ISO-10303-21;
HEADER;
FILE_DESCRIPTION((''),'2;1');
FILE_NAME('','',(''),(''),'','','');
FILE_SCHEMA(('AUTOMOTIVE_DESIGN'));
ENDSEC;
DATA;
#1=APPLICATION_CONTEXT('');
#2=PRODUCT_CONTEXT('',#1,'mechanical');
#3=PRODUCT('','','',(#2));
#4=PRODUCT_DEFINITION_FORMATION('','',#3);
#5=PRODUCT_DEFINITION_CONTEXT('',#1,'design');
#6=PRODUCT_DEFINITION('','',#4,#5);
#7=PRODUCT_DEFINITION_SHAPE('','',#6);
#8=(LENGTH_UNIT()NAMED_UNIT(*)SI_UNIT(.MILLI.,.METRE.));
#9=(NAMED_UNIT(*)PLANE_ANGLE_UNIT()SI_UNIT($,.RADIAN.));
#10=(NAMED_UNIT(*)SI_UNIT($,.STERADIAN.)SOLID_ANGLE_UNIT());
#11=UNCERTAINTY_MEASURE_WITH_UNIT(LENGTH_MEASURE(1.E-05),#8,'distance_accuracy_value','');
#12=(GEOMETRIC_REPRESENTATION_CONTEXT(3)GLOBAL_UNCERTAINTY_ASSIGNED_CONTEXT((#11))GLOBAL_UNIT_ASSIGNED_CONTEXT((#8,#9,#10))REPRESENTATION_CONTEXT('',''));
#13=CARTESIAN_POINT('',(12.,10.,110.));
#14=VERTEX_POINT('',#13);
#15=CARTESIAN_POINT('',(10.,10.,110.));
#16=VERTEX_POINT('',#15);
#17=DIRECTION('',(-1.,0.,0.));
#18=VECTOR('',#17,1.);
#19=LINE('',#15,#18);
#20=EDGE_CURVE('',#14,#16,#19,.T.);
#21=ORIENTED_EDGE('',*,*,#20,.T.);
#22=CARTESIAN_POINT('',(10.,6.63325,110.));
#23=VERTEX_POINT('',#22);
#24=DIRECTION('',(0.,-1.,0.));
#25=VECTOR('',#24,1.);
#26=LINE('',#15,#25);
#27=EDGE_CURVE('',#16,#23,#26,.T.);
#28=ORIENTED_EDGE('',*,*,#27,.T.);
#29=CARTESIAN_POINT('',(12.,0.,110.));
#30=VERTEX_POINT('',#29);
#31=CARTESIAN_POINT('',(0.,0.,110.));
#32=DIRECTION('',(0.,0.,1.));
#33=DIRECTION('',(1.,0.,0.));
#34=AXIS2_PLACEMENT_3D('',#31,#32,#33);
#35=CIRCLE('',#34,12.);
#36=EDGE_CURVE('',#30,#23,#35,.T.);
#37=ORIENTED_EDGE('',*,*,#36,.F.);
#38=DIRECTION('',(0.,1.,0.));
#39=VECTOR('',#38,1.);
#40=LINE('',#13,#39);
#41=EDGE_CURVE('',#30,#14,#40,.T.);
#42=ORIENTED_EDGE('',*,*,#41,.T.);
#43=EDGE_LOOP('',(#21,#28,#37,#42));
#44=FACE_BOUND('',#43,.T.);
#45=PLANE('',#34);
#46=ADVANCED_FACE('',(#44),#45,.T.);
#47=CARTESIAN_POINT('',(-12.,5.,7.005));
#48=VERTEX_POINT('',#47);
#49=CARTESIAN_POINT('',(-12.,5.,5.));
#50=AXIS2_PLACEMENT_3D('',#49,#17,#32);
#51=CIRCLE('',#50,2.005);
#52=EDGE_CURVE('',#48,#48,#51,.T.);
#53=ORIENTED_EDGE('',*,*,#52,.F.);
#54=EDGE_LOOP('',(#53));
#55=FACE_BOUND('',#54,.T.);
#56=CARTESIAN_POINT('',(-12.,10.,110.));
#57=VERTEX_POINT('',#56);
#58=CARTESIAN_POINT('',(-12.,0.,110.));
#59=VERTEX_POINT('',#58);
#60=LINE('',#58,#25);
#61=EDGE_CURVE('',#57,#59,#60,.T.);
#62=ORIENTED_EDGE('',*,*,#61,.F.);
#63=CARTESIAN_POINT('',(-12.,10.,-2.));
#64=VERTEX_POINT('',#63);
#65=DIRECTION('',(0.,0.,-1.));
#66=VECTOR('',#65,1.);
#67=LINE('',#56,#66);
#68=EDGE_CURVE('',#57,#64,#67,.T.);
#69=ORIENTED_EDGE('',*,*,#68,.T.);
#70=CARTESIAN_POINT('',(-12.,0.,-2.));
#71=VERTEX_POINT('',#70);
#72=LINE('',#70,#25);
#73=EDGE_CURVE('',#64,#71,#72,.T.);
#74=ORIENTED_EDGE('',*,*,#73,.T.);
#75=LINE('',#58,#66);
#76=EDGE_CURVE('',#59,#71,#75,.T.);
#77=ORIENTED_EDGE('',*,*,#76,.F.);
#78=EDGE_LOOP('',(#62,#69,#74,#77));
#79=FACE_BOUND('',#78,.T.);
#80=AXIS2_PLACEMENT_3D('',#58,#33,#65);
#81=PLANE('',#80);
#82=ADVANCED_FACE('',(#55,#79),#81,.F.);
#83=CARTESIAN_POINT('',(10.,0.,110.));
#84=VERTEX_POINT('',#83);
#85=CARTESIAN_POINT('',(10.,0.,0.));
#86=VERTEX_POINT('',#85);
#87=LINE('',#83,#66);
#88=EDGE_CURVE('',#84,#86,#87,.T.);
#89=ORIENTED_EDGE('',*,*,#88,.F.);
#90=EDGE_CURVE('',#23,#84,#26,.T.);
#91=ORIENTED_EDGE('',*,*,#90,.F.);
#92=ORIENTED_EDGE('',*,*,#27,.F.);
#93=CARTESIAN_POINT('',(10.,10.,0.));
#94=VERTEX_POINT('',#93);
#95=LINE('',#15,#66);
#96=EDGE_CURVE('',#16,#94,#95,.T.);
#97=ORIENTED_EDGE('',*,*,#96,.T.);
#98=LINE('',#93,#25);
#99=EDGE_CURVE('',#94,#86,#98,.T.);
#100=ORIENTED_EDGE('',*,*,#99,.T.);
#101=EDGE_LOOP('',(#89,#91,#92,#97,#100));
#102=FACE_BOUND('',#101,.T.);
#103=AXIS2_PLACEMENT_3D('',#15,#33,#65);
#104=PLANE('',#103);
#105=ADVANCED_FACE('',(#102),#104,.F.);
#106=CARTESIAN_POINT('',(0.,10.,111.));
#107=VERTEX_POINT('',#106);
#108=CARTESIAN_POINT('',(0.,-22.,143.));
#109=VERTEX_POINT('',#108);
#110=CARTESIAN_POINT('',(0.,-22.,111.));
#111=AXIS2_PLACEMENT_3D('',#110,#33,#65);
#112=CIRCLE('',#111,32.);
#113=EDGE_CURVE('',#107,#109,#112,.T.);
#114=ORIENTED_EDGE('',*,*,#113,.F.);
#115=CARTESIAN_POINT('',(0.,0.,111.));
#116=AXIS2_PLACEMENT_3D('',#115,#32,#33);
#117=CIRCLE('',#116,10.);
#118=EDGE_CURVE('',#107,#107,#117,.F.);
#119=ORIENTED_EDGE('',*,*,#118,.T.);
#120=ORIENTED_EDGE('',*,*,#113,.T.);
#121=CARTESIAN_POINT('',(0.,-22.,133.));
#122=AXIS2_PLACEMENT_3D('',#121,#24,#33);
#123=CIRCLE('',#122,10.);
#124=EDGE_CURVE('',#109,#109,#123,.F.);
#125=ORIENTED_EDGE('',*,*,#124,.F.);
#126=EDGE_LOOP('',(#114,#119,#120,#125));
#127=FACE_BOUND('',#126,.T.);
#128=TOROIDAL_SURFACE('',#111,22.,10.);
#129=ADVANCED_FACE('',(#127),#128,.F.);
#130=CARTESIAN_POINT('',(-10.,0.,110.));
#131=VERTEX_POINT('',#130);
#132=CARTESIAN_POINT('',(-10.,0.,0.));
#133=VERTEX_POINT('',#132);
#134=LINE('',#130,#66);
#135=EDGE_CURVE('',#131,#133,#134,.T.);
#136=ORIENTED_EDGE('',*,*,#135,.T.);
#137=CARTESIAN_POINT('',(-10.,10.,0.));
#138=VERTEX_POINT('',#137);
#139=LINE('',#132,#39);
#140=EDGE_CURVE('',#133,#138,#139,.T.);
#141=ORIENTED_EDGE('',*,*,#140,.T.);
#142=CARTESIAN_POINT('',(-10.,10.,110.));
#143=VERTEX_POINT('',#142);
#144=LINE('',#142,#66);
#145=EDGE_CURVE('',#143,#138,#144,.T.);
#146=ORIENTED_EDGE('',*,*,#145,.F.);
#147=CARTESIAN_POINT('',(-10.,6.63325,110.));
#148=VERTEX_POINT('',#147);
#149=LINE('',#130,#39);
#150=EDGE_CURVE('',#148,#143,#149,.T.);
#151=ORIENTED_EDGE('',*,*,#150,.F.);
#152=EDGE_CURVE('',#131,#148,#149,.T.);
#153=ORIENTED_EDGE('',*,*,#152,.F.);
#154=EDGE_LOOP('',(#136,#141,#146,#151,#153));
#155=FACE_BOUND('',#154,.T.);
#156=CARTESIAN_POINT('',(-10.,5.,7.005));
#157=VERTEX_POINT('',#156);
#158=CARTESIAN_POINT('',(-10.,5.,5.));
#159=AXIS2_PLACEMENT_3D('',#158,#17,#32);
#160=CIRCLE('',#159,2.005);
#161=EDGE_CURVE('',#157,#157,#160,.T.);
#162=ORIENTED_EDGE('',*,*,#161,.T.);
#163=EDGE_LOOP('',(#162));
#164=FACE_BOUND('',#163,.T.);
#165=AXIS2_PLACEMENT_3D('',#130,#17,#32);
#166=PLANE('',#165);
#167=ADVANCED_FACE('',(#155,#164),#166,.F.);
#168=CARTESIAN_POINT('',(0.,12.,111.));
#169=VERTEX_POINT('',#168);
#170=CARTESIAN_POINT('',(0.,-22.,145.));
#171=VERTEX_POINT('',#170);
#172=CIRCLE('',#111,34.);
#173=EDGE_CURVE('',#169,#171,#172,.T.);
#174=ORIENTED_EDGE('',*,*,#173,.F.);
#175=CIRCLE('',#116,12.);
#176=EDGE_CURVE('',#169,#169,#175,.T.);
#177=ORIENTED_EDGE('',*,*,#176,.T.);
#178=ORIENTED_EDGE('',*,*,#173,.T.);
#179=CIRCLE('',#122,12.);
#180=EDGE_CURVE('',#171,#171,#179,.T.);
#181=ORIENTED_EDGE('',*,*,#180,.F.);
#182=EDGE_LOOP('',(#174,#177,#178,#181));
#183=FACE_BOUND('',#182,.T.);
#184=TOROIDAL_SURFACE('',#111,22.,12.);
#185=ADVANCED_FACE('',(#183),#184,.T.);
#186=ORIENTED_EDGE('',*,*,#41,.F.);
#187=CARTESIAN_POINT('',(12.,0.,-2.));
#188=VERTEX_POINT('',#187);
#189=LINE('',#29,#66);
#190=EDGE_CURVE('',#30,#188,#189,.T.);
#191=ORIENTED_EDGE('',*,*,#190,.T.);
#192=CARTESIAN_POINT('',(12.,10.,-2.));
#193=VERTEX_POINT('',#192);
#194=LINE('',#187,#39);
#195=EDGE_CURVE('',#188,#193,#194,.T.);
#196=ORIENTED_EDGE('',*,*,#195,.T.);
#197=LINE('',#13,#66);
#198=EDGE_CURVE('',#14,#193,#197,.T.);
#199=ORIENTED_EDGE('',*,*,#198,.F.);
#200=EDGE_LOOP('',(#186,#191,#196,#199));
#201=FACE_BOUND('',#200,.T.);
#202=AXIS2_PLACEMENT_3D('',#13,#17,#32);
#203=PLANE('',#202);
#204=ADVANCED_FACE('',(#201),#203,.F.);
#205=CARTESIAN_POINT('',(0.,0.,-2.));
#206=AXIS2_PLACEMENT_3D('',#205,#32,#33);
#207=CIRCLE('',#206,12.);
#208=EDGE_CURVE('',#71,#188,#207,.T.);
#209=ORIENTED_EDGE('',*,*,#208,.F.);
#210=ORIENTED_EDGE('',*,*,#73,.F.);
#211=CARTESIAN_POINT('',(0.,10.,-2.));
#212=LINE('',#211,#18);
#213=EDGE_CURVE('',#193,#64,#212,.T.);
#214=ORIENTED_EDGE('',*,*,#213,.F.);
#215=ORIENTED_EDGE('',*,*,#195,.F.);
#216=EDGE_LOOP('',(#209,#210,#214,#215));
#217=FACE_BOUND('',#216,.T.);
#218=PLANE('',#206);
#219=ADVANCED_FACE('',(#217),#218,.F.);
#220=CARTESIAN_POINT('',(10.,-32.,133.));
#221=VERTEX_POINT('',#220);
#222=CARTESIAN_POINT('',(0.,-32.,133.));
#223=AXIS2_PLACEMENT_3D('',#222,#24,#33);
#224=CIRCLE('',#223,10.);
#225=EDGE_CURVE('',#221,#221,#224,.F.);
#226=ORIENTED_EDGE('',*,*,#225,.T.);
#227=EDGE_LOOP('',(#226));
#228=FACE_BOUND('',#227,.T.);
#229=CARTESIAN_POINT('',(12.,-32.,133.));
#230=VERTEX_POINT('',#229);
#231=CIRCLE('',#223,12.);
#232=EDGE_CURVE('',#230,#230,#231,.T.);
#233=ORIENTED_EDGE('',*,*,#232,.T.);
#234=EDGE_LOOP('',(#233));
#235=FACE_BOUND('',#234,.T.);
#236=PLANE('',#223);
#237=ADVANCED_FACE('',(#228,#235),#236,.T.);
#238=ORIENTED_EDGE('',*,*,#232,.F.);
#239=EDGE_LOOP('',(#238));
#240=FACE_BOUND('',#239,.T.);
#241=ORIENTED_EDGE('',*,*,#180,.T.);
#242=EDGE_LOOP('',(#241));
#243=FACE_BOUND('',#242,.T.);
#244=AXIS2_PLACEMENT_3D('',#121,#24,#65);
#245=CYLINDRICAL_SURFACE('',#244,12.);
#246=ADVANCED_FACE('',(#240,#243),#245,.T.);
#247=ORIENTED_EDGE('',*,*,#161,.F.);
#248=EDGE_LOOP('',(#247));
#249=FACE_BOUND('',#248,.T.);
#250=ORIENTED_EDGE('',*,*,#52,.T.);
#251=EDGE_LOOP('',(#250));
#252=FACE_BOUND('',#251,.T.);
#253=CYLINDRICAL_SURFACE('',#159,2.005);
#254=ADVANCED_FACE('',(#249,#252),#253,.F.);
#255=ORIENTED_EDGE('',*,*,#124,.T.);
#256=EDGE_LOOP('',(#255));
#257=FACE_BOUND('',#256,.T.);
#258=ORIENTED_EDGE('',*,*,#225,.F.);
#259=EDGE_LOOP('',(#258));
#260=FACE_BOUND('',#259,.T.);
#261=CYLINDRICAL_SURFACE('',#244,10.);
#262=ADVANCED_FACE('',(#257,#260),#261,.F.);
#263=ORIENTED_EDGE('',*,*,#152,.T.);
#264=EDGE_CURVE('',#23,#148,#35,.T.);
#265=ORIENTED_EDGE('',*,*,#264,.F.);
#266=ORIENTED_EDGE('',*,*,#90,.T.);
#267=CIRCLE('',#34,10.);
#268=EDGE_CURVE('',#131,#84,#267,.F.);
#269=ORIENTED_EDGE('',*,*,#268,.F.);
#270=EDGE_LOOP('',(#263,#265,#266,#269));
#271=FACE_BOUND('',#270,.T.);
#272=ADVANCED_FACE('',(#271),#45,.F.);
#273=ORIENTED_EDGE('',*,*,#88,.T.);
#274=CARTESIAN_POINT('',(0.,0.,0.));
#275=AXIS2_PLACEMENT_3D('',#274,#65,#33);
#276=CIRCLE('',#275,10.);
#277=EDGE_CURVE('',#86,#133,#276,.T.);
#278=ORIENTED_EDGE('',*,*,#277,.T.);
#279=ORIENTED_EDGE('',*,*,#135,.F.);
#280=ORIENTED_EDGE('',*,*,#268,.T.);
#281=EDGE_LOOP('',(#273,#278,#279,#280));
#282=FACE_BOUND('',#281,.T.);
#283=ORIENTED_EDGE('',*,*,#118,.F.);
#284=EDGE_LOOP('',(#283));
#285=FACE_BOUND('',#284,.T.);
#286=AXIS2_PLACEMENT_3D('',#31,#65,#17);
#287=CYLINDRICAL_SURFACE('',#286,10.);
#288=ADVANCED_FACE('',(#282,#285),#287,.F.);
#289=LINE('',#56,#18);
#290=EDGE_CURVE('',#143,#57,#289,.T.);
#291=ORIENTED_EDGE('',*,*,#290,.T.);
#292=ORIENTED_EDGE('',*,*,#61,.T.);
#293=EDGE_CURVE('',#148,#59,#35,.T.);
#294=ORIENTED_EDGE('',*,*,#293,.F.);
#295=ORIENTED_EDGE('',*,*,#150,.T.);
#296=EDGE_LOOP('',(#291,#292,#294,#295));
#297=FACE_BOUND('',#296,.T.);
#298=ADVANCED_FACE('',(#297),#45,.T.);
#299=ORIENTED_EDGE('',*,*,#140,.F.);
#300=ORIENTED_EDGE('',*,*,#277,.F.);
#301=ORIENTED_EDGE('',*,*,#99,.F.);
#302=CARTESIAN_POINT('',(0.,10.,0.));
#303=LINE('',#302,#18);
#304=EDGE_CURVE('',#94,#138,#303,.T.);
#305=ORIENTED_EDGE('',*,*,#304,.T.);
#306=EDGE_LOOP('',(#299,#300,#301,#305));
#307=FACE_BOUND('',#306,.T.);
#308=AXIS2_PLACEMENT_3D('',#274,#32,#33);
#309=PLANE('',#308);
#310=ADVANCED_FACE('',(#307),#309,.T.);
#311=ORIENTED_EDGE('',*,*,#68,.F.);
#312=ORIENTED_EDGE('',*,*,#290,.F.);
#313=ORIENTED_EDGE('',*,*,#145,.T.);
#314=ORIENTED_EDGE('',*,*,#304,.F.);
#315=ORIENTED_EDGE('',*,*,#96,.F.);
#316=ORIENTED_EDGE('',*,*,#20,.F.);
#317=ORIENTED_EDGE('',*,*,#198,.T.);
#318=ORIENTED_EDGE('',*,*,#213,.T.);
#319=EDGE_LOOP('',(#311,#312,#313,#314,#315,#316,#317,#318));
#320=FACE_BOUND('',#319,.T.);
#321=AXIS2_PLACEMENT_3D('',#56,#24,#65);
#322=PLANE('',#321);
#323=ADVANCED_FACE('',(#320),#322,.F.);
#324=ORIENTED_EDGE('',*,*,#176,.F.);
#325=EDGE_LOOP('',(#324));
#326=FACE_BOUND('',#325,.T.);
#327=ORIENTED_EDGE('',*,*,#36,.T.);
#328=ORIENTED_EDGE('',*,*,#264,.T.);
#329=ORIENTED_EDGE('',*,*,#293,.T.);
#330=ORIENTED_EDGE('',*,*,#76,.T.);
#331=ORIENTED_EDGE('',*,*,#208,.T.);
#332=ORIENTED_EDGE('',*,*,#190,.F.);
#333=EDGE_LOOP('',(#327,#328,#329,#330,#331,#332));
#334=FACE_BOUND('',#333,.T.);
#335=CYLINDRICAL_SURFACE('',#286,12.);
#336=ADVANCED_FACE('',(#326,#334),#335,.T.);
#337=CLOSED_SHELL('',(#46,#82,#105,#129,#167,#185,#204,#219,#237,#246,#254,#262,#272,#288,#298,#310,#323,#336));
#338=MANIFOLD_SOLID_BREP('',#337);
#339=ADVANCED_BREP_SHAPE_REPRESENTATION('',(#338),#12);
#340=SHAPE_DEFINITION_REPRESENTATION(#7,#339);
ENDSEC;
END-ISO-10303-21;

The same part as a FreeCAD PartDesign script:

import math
import FreeCAD as App
import Part
import Sketcher
Q = App.Units.Quantity

doc = App.newDocument("Part")
body = doc.addObject("PartDesign::Body", "Body")

sketch1 = body.newObject("Sketcher::SketchObject", "Sketch")
sketch1.AttachmentSupport = (doc.getObject("XY_Plane"), [""])
sketch1.MapMode = "FlatFace"
sketch1.addGeometry([
    Part.LineSegment(App.Vector(-10, 0, 0), App.Vector(-10, 10, 0)),
    Part.LineSegment(App.Vector(-10, 10, 0), App.Vector(-12, 10, 0)),
    Part.LineSegment(App.Vector(-12, 10, 0), App.Vector(-12, 0, 0)),
    Part.ArcOfCircle(Part.Circle(App.Vector(0, 0, 0), App.Vector(0, 0, 1), 12), math.radians(180), math.radians(360)),
    Part.LineSegment(App.Vector(12, 0, 0), App.Vector(12, 10, 0)),
    Part.LineSegment(App.Vector(12, 10, 0), App.Vector(10, 10, 0)),
    Part.LineSegment(App.Vector(10, 10, 0), App.Vector(10, 0, 0)),
    Part.ArcOfCircle(Part.Circle(App.Vector(0, 0, 0), App.Vector(0, 0, 1), 10), math.radians(180), math.radians(360)),
], False)
sketch1.addConstraint([
    Sketcher.Constraint("Coincident", 0, 2, 1, 1),
    Sketcher.Constraint("Coincident", 1, 2, 2, 1),
    Sketcher.Constraint("Tangent", 2, 2, 3, 1),
    Sketcher.Constraint("Tangent", 3, 2, 4, 1),
    Sketcher.Constraint("Coincident", 4, 2, 5, 1),
    Sketcher.Constraint("Coincident", 5, 2, 6, 1),
    Sketcher.Constraint("Tangent", 6, 2, 7, 2),
    Sketcher.Constraint("Tangent", 7, 1, 0, 1),
    Sketcher.Constraint("Vertical", 0),
    Sketcher.Constraint("Horizontal", 1),
    Sketcher.Constraint("Vertical", 2),
    Sketcher.Constraint("Vertical", 4),
    Sketcher.Constraint("Horizontal", 5),
    Sketcher.Constraint("Vertical", 6),
    Sketcher.Constraint("Coincident", 3, 3, -1, 1),
    Sketcher.Constraint("Coincident", 7, 3, -1, 1),
    Sketcher.Constraint("Horizontal", 1, 2, 4, 2),
    Sketcher.Constraint("Radius", 3, Q("12 mm")),
    Sketcher.Constraint("Radius", 7, Q("10 mm")),
    Sketcher.Constraint("DistanceY", 0, 1, 0, 2, Q("10 mm")),
])
pad1 = body.newObject("PartDesign::Pad", "Pad")
pad1.Profile = sketch1
pad1.Length = 110

sketch2 = body.newObject("Sketcher::SketchObject", "Sketch001")
sketch2.AttachmentSupport = (doc.getObject("XY_Plane"), [""])
sketch2.MapMode = "FlatFace"
sketch2.AttachmentOffset = App.Placement(App.Vector(0, 0, -2), App.Rotation())
sketch2.addGeometry([
    Part.LineSegment(App.Vector(12, 10, 0), App.Vector(-12, 10, 0)),
    Part.LineSegment(App.Vector(-12, 10, 0), App.Vector(-12, 0, 0)),
    Part.ArcOfCircle(Part.Circle(App.Vector(0, 0, 0), App.Vector(0, 0, 1), 12), math.radians(180), math.radians(360)),
    Part.LineSegment(App.Vector(12, 0, 0), App.Vector(12, 10, 0)),
], False)
sketch2.addConstraint([
    Sketcher.Constraint("Coincident", 0, 2, 1, 1),
    Sketcher.Constraint("Tangent", 1, 2, 2, 1),
    Sketcher.Constraint("Tangent", 2, 2, 3, 1),
    Sketcher.Constraint("Coincident", 3, 2, 0, 1),
    Sketcher.Constraint("Horizontal", 0),
    Sketcher.Constraint("Vertical", 1),
    Sketcher.Constraint("Vertical", 3),
    Sketcher.Constraint("Coincident", 2, 3, -1, 1),
    Sketcher.Constraint("Radius", 2, Q("12 mm")),
    Sketcher.Constraint("DistanceY", 1, 2, 1, 1, Q("10 mm")),
])
pad2 = body.newObject("PartDesign::Pad", "Pad001")
pad2.Profile = sketch2
pad2.Length = 2

sketch3 = body.newObject("Sketcher::SketchObject", "Sketch002")
sketch3.AttachmentSupport = (doc.getObject("YZ_Plane"), [""])
sketch3.MapMode = "FlatFace"
sketch3.AttachmentOffset = App.Placement(App.Vector(0, 0, -12), App.Rotation())
sketch3.addGeometry(Part.Circle(App.Vector(5, 5, 0), App.Vector(0, 0, 1), 2.005), False)
sketch3.addConstraint([
    Sketcher.Constraint("Diameter", 0, Q("4.01 mm")),
    Sketcher.Constraint("DistanceX", -1, 1, 0, 3, Q("5 mm")),
    Sketcher.Constraint("DistanceY", -1, 1, 0, 3, Q("5 mm")),
])
pocket1 = body.newObject("PartDesign::Pocket", "Pocket")
pocket1.Profile = sketch3
pocket1.Length = 2
pocket1.Reversed = True

sketch4 = body.newObject("Sketcher::SketchObject", "Sketch003")
sketch4.AttachmentSupport = (doc.getObject("XY_Plane"), [""])
sketch4.MapMode = "FlatFace"
sketch4.AttachmentOffset = App.Placement(App.Vector(0, 0, 110), App.Rotation())
sketch4.addGeometry([
    Part.Circle(App.Vector(0, 0, 0), App.Vector(0, 0, 1), 12),
    Part.Circle(App.Vector(0, 0, 0), App.Vector(0, 0, 1), 10),
], False)
sketch4.addConstraint([
    Sketcher.Constraint("Coincident", 0, 3, -1, 1),
    Sketcher.Constraint("Coincident", 1, 3, -1, 1),
    Sketcher.Constraint("Diameter", 0, Q("24 mm")),
    Sketcher.Constraint("Diameter", 1, Q("20 mm")),
])

sketch5 = body.newObject("Sketcher::SketchObject", "Sketch004")
sketch5.AttachmentSupport = (doc.getObject("YZ_Plane"), [""])
sketch5.MapMode = "FlatFace"
sketch5.addGeometry([
    Part.LineSegment(App.Vector(-12, 110, 0), App.Vector(-12, 111, 0)),
    Part.ArcOfCircle(Part.Circle(App.Vector(-22, 111, 0), App.Vector(0, 0, 1), 10), math.radians(0), math.radians(90)),
    Part.LineSegment(App.Vector(-22, 121, 0), App.Vector(-32, 121, 0)),
], False)
sketch5.addConstraint([
    Sketcher.Constraint("Tangent", 0, 2, 1, 1),
    Sketcher.Constraint("Tangent", 1, 2, 2, 1),
    Sketcher.Constraint("Vertical", 0),
    Sketcher.Constraint("Horizontal", 2),
    Sketcher.Constraint("Radius", 1, Q("10 mm")),
    Sketcher.Constraint("DistanceX", 2, 2, 2, 1, Q("10 mm")),
    Sketcher.Constraint("DistanceY", 0, 1, 0, 2, Q("1 mm")),
    Sketcher.Constraint("DistanceX", 1, 3, -1, 1, Q("22 mm")),
    Sketcher.Constraint("DistanceY", -1, 1, 1, 3, Q("111 mm")),
])
doc.recompute()

additivepipe = body.newObject("PartDesign::AdditivePipe", "AdditivePipe")
additivepipe.Profile = sketch4
additivepipe.Spine = (sketch5, ["Edge1", "Edge2", "Edge3"])

doc.recompute()
